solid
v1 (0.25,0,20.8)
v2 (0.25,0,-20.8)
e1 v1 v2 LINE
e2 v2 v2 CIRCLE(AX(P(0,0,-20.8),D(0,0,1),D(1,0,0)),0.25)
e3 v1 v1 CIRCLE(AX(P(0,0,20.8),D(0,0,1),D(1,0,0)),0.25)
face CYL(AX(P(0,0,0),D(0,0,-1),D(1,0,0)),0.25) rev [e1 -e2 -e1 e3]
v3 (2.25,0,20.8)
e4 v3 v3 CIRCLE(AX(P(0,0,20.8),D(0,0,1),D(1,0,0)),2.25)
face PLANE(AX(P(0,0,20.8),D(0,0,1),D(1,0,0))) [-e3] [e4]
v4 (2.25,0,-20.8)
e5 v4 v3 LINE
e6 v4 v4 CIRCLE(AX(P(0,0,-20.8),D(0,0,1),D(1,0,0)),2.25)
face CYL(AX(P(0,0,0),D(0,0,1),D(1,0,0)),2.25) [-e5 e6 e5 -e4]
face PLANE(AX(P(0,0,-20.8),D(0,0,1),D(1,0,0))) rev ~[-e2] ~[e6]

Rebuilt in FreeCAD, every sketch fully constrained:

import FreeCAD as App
import Part
import Sketcher
Q = App.Units.Quantity

doc = App.newDocument("Part")
body = doc.addObject("PartDesign::Body", "Body")

sketch1 = body.newObject("Sketcher::SketchObject", "Sketch")
sketch1.AttachmentSupport = (doc.getObject("XY_Plane"), [""])
sketch1.MapMode = "FlatFace"
sketch1.addGeometry([
    Part.Circle(App.Vector(0, 0, 0), App.Vector(0, 0, 1), 2.25),
    Part.Circle(App.Vector(0, 0, 0), App.Vector(0, 0, 1), 0.25),
], False)
sketch1.addConstraint([
    Sketcher.Constraint("Coincident", 0, 3, -1, 1),
    Sketcher.Constraint("Coincident", 1, 3, -1, 1),
    Sketcher.Constraint("Diameter", 0, Q("4.5 mm")),
    Sketcher.Constraint("Diameter", 1, Q("0.5 mm")),
])
pad1 = body.newObject("PartDesign::Pad", "Pad")
pad1.Profile = sketch1
pad1.Length = 41.6
pad1.Midplane = True

doc.recompute()
